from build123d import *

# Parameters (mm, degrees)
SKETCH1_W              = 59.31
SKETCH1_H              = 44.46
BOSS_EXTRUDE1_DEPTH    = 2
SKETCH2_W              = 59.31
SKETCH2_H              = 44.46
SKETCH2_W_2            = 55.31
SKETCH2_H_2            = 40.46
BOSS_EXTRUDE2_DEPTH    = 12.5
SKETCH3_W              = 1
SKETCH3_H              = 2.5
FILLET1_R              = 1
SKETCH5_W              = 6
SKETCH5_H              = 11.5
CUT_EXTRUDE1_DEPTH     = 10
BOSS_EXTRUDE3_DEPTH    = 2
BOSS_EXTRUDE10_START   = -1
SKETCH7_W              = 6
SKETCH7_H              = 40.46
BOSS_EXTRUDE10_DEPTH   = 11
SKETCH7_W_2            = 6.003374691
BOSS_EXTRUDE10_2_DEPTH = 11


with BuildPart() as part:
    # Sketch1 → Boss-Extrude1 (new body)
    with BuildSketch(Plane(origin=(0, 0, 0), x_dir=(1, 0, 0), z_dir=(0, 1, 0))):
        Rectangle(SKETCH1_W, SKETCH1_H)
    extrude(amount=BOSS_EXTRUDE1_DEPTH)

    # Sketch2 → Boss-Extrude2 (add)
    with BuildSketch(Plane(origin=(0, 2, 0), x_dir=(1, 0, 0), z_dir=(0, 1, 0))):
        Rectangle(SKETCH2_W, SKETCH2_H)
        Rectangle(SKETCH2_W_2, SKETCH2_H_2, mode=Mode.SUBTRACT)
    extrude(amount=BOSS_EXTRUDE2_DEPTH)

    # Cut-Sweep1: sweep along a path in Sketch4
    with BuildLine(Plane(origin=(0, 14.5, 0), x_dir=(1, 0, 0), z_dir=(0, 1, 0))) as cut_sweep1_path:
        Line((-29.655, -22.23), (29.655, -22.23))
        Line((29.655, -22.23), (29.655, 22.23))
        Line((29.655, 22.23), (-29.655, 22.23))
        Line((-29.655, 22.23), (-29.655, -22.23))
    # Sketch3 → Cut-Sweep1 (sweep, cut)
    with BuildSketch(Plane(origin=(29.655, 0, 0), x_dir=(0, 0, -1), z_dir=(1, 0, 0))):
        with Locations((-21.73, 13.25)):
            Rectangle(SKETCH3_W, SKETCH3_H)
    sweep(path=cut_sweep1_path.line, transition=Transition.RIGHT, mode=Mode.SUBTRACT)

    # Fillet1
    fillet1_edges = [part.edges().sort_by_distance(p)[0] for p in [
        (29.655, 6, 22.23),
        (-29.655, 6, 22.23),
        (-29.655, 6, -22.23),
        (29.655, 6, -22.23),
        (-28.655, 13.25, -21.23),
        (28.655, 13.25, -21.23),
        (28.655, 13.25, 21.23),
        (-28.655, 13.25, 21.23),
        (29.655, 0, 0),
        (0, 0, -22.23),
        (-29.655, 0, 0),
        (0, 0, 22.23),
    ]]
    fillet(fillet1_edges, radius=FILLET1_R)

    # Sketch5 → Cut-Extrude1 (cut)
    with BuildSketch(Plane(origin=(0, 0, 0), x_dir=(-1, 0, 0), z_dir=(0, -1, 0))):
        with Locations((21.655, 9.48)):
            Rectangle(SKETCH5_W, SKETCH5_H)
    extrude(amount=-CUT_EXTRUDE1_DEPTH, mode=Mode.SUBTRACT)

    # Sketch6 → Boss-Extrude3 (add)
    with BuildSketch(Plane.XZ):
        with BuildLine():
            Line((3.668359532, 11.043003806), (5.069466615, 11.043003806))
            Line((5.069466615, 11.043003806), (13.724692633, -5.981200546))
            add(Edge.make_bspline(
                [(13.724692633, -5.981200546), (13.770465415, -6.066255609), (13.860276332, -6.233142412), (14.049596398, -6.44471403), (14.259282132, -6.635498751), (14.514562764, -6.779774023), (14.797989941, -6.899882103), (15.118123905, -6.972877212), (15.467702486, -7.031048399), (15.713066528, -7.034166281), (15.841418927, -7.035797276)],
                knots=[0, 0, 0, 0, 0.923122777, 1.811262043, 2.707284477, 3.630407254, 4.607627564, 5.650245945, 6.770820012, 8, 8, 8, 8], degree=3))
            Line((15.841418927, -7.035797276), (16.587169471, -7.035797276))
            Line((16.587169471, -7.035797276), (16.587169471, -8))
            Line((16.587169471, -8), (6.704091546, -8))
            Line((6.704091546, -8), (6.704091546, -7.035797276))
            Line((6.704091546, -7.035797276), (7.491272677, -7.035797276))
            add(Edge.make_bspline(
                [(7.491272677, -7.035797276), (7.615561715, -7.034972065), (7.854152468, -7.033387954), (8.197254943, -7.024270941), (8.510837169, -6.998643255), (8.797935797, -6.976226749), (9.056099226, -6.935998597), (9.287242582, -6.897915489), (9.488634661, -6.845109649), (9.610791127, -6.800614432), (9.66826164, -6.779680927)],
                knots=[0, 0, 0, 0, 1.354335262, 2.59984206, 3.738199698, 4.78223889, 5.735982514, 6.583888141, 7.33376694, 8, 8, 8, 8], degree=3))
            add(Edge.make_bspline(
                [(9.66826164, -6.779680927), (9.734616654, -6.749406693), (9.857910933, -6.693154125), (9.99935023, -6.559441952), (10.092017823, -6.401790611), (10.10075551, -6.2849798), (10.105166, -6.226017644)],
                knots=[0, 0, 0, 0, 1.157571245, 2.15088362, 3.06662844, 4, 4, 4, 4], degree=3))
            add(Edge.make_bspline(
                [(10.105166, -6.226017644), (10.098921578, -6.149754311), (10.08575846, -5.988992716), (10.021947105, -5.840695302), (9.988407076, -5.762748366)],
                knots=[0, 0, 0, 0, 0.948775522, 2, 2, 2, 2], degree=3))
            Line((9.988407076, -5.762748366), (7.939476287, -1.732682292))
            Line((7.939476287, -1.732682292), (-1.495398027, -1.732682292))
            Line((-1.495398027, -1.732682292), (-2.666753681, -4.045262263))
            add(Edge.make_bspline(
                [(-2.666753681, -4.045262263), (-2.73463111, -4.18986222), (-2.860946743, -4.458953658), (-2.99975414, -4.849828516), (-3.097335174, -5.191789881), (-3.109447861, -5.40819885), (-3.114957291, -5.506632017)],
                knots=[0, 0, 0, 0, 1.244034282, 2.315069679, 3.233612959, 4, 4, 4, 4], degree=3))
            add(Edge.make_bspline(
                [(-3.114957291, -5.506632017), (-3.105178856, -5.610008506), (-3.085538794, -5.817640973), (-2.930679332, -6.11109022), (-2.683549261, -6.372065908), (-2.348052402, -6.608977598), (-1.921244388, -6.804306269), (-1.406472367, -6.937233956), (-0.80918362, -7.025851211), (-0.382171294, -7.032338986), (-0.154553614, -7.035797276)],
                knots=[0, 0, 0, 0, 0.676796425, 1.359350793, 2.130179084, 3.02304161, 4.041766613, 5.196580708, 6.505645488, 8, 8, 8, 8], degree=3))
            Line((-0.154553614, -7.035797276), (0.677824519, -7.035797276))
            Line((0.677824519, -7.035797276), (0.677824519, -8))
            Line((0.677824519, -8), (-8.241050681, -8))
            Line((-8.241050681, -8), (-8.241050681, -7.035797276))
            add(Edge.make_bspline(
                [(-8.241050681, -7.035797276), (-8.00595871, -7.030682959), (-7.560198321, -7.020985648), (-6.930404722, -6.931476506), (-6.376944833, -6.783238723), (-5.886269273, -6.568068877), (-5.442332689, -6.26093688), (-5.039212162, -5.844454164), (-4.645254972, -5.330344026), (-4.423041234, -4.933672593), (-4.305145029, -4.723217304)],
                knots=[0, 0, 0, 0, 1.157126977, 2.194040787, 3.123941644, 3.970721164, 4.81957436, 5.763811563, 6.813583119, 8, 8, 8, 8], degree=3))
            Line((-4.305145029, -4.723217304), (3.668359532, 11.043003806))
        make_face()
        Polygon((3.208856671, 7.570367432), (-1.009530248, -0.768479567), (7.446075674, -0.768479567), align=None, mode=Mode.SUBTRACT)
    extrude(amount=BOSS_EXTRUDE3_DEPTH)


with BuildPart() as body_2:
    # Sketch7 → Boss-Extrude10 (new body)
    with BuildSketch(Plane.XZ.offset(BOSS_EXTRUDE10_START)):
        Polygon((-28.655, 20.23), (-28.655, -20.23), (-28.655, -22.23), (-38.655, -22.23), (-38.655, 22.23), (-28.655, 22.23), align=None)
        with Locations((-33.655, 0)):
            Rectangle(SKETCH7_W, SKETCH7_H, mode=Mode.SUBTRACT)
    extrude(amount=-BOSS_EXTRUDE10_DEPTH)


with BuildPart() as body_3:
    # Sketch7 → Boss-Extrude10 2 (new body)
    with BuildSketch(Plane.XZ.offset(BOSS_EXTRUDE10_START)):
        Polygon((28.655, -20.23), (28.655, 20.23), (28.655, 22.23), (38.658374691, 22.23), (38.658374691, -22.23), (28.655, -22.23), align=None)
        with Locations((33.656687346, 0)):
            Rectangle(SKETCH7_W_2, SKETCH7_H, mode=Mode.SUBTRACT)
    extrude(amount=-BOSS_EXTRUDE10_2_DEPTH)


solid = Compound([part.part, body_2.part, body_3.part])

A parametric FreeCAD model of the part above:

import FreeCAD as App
import Part
import Sketcher
from FreeCAD import Vector


def edges_at(feature, points):
    """Names of the edges that pass closest to the given points."""
    edges = feature.Shape.Edges
    near = lambda p: min(range(len(edges)), key=lambda i: edges[i].distToShape(Part.Vertex(*p))[0])
    return sorted({f"Edge{near(p) + 1}" for p in points})


def add_polygon(sketch, points):
    """Adds a closed chain of lines whose ends are joined by coincident constraints."""
    first, n = sketch.GeometryCount, len(points)
    for a, b in zip(points, points[1:] + points[:1]):
        sketch.addGeometry(Part.LineSegment(App.Vector(*a, 0), App.Vector(*b, 0)), False)
    for i in range(n):
        sketch.addConstraint(Sketcher.Constraint("Coincident", first + i, 2, first + (i + 1) % n, 1))

doc = App.newDocument("Part")
body = doc.addObject("PartDesign::Body", "Body")

# Sketch on XZ plane
sketch1 = body.newObject("Sketcher::SketchObject", "Sketch")
sketch1.AttachmentSupport = (doc.getObject("XZ_Plane"), [""])
sketch1.MapMode = "FlatFace"
add_polygon(sketch1, [(-30, -22), (-30, 22), (30, 22), (30, -22)])  # lines 0-3
sketch1.addConstraint(Sketcher.Constraint("Vertical", 0))
sketch1.addConstraint(Sketcher.Constraint("Horizontal", 1))
sketch1.addConstraint(Sketcher.Constraint("Vertical", 2))
sketch1.addConstraint(Sketcher.Constraint("Horizontal", 3))
sketch1.addConstraint(Sketcher.Constraint("Symmetric", 0, 2, 2, 2, -1, 1))
sketch1.addConstraint(Sketcher.Constraint("DistanceX", 1, 1, 1, 2, 59.31))
sketch1.addConstraint(Sketcher.Constraint("DistanceY", 0, 1, 0, 2, 44.46))
pad1 = body.newObject("PartDesign::Pad", "Pad")
pad1.Profile = sketch1
pad1.Length = 2
pad1.Reversed = True

# Sketch on XZ plane
sketch2 = body.newObject("Sketcher::SketchObject", "Sketch001")
sketch2.AttachmentSupport = (doc.getObject("XZ_Plane"), [""])
sketch2.MapMode = "FlatFace"
sketch2.AttachmentOffset = App.Placement(Vector(0, 0, -2), App.Rotation())
add_polygon(sketch2, [(-30, -22), (-30, 22), (30, 22), (30, -22)])  # lines 0-3
add_polygon(sketch2, [(28, 20), (-28, 20), (-28, -20), (28, -20)])  # lines 4-7
sketch2.addConstraint(Sketcher.Constraint("Vertical", 0))
sketch2.addConstraint(Sketcher.Constraint("Horizontal", 1))
sketch2.addConstraint(Sketcher.Constraint("Vertical", 2))
sketch2.addConstraint(Sketcher.Constraint("Horizontal", 3))
sketch2.addConstraint(Sketcher.Constraint("Horizontal", 4))
sketch2.addConstraint(Sketcher.Constraint("Vertical", 5))
sketch2.addConstraint(Sketcher.Constraint("Horizontal", 6))
sketch2.addConstraint(Sketcher.Constraint("Vertical", 7))
sketch2.addConstraint(Sketcher.Constraint("Symmetric", 0, 2, 2, 2, -1, 1))
sketch2.addConstraint(Sketcher.Constraint("Symmetric", 4, 2, 6, 2, -1, 1))
sketch2.addConstraint(Sketcher.Constraint("DistanceX", 0, 2, 4, 2, 2.0))
sketch2.addConstraint(Sketcher.Constraint("DistanceY", 4, 2, 0, 2, 2.0))
sketch2.addConstraint(Sketcher.Constraint("DistanceX", 1, 1, 1, 2, 59.31))
sketch2.addConstraint(Sketcher.Constraint("DistanceY", 0, 1, 0, 2, 44.46))
pad2 = body.newObject("PartDesign::Pad", "Pad001")
pad2.Profile = sketch2
pad2.Length = 12.5
pad2.Reversed = True

# Sketch on YZ plane
sketch3 = body.newObject("Sketcher::SketchObject", "Sketch002")
sketch3.AttachmentSupport = (doc.getObject("YZ_Plane"), [""])
sketch3.MapMode = "FlatFace"
sketch3.AttachmentOffset = App.Placement(Vector(0, 0, 29.655), App.Rotation())
add_polygon(sketch3, [(14.5, 22.2), (12, 22.2), (12, 21.2), (14.5, 21.2)])  # lines 0-3
sketch3.addConstraint(Sketcher.Constraint("Horizontal", 0))
sketch3.addConstraint(Sketcher.Constraint("Vertical", 1))
sketch3.addConstraint(Sketcher.Constraint("Horizontal", 2))
sketch3.addConstraint(Sketcher.Constraint("Vertical", 3))
sketch3.addConstraint(Sketcher.Constraint("DistanceY", 1, 2, 1, 1, 1.0))
sketch3.addConstraint(Sketcher.Constraint("DistanceX", 0, 2, 0, 1, 2.5))
sketch3.addConstraint(Sketcher.Constraint("DistanceX", -1, 1, 0, 2, 12.0))
sketch3.addConstraint(Sketcher.Constraint("DistanceY", -1, 1, 0, 2, 22.23))

# Sketch on XZ plane
sketch4 = body.newObject("Sketcher::SketchObject", "Sketch003")
sketch4.AttachmentSupport = (doc.getObject("XZ_Plane"), [""])
sketch4.MapMode = "FlatFace"
sketch4.AttachmentOffset = App.Placement(Vector(0, 0, -14.5), App.Rotation())
add_polygon(sketch4, [(-30, 22), (30, 22), (30, -22), (-30, -22)])  # lines 0-3
sketch4.addConstraint(Sketcher.Constraint("Horizontal", 0))
sketch4.addConstraint(Sketcher.Constraint("Vertical", 1))
sketch4.addConstraint(Sketcher.Constraint("Horizontal", 2))
sketch4.addConstraint(Sketcher.Constraint("Vertical", 3))
sketch4.addConstraint(Sketcher.Constraint("Symmetric", 0, 2, 2, 2, -1, 1))
sketch4.addConstraint(Sketcher.Constraint("DistanceX", 0, 1, 0, 2, 59.31))
sketch4.addConstraint(Sketcher.Constraint("DistanceY", 1, 2, 1, 1, 44.46))
doc.recompute()

subtractivepipe = body.newObject("PartDesign::SubtractivePipe", "SubtractivePipe")
subtractivepipe.Profile = sketch3
subtractivepipe.Spine = (sketch4, ["Edge1", "Edge2", "Edge3", "Edge4"])
subtractivepipe.Transition = "Right corner"
doc.recompute()

fillet = body.newObject("PartDesign::Fillet", "Fillet")
fillet.Base = (subtractivepipe, edges_at(subtractivepipe, [
    (29.655, 6, 22.23),
    (-29.655, 6, 22.23),
    (-29.655, 6, -22.23),
    (29.655, 6, -22.23),
    (-28.655, 13.25, -21.23),
    (28.655, 13.25, -21.23),
    (28.655, 13.25, 21.23),
    (-28.655, 13.25, 21.23),
    (29.655, 0, 0),
    (0, 0, -22.23),
    (-29.655, 0, 0),
    (0, 0, 22.23),
]))
fillet.Radius = 1

# Sketch on XZ plane
sketch5 = body.newObject("Sketcher::SketchObject", "Sketch004")
sketch5.AttachmentSupport = (doc.getObject("XZ_Plane"), [""])
sketch5.MapMode = "FlatFace"
add_polygon(sketch5, [(-19, -15), (-19, -4), (-25, -4), (-25, -15)])  # lines 0-3
sketch5.addConstraint(Sketcher.Constraint("Vertical", 0))
sketch5.addConstraint(Sketcher.Constraint("Horizontal", 1))
sketch5.addConstraint(Sketcher.Constraint("Vertical", 2))
sketch5.addConstraint(Sketcher.Constraint("Horizontal", 3))
sketch5.addConstraint(Sketcher.Constraint("DistanceX", 1, 2, 1, 1, 6.0))
sketch5.addConstraint(Sketcher.Constraint("DistanceY", 0, 1, 0, 2, 11.5))
sketch5.addConstraint(Sketcher.Constraint("DistanceY", 0, 2, -1, 1, 3.73))
sketch5.addConstraint(Sketcher.Constraint("DistanceX", 0, 2, -1, 1, 18.655))
pocket1 = body.newObject("PartDesign::Pocket", "Pocket")
pocket1.Profile = sketch5
pocket1.Length = 10

# Sketch on XZ plane
sketch6 = body.newObject("Sketcher::SketchObject", "Sketch005")
sketch6.AttachmentSupport = (doc.getObject("XZ_Plane"), [""])
sketch6.MapMode = "FlatFace"
sketch6.addGeometry(Part.LineSegment(Vector(5.069467, 11.043004, 0), Vector(3.66836, 11.043004, 0)), False)  # 0
sketch6.addGeometry(Part.LineSegment(Vector(3.66836, 11.043004, 0), Vector(-4.305145, -4.723217, 0)), False)  # 1
sketch6.addGeometry(Part.BSplineCurve([Vector(-8.241051, -7.035797, 0), Vector(-8.005959, -7.030683, 0), Vector(-7.560198, -7.020986, 0), Vector(-6.930405, -6.931477, 0), Vector(-6.376945, -6.783239, 0), Vector(-5.886269, -6.568069, 0), Vector(-5.442333, -6.260937, 0), Vector(-5.039212, -5.844454, 0), Vector(-4.645255, -5.330344, 0), Vector(-4.423041, -4.933673, 0), Vector(-4.305145, -4.723217, 0)], [4, 1, 1, 1, 1, 1, 1, 1, 4], [0, 1.157126977, 2.194040787, 3.123941644, 3.970721164, 4.81957436, 5.763811563, 6.813583119, 8], False, 3, [1, 1, 1, 1, 1, 1, 1, 1, 1, 1, 1], False), False)  # 2
sketch6.addGeometry(Part.LineSegment(Vector(-8.241051, -7.035797, 0), Vector(-8.241051, -8, 0)), False)  # 3
sketch6.addGeometry(Part.LineSegment(Vector(-8.241051, -8, 0), Vector(0.677825, -8, 0)), False)  # 4
sketch6.addGeometry(Part.LineSegment(Vector(0.677825, -8, 0), Vector(0.677825, -7.035797, 0)), False)  # 5
sketch6.addGeometry(Part.LineSegment(Vector(0.677825, -7.035797, 0), Vector(-0.154554, -7.035797, 0)), False)  # 6
sketch6.addGeometry(Part.BSplineCurve([Vector(-3.114957, -5.506632, 0), Vector(-3.105179, -5.610009, 0), Vector(-3.085539, -5.817641, 0), Vector(-2.930679, -6.11109, 0), Vector(-2.683549, -6.372066, 0), Vector(-2.348052, -6.608978, 0), Vector(-1.921244, -6.804306, 0), Vector(-1.406472, -6.937234, 0), Vector(-0.809184, -7.025851, 0), Vector(-0.382171, -7.032339, 0), Vector(-0.154554, -7.035797, 0)], [4, 1, 1, 1, 1, 1, 1, 1, 4], [0, 0.676796425, 1.359350793, 2.130179084, 3.02304161, 4.041766613, 5.196580708, 6.505645488, 8], False, 3, [1, 1, 1, 1, 1, 1, 1, 1, 1, 1, 1], False), False)  # 7
sketch6.addGeometry(Part.BSplineCurve([Vector(-2.666754, -4.045262, 0), Vector(-2.734631, -4.189862, 0), Vector(-2.860947, -4.458954, 0), Vector(-2.999754, -4.849829, 0), Vector(-3.097335, -5.19179, 0), Vector(-3.109448, -5.408199, 0), Vector(-3.114957, -5.506632, 0)], [4, 1, 1, 1, 4], [0, 1.244034282, 2.315069679, 3.233612959, 4], False, 3, [1, 1, 1, 1, 1, 1, 1], False), False)  # 8
sketch6.addGeometry(Part.LineSegment(Vector(-2.666754, -4.045262, 0), Vector(-1.495398, -1.732682, 0)), False)  # 9
sketch6.addGeometry(Part.LineSegment(Vector(-1.495398, -1.732682, 0), Vector(7.939476, -1.732682, 0)), False)  # 10
sketch6.addGeometry(Part.LineSegment(Vector(7.939476, -1.732682, 0), Vector(9.988407, -5.762748, 0)), False)  # 11
sketch6.addGeometry(Part.BSplineCurve([Vector(10.105166, -6.226018, 0), Vector(10.098922, -6.149754, 0), Vector(10.085758, -5.988993, 0), Vector(10.021947, -5.840695, 0), Vector(9.988407, -5.762748, 0)], [4, 1, 4], [0, 0.948775522, 2], False, 3, [1, 1, 1, 1, 1], False), False)  # 12
sketch6.addGeometry(Part.BSplineCurve([Vector(9.668262, -6.779681, 0), Vector(9.734617, -6.749407, 0), Vector(9.857911, -6.693154, 0), Vector(9.99935, -6.559442, 0), Vector(10.092018, -6.401791, 0), Vector(10.100756, -6.28498, 0), Vector(10.105166, -6.226018, 0)], [4, 1, 1, 1, 4], [0, 1.157571245, 2.15088362, 3.06662844, 4], False, 3, [1, 1, 1, 1, 1, 1, 1], False), False)  # 13
sketch6.addGeometry(Part.BSplineCurve([Vector(7.491273, -7.035797, 0), Vector(7.615562, -7.034972, 0), Vector(7.854152, -7.033388, 0), Vector(8.197255, -7.024271, 0), Vector(8.510837, -6.998643, 0), Vector(8.797936, -6.976227, 0), Vector(9.056099, -6.935999, 0), Vector(9.287243, -6.897915, 0), Vector(9.488635, -6.84511, 0), Vector(9.610791, -6.800614, 0), Vector(9.668262, -6.779681, 0)], [4, 1, 1, 1, 1, 1, 1, 1, 4], [0, 1.354335262, 2.59984206, 3.738199698, 4.78223889, 5.735982514, 6.583888141, 7.33376694, 8], False, 3, [1, 1, 1, 1, 1, 1, 1, 1, 1, 1, 1], False), False)  # 14
sketch6.addGeometry(Part.LineSegment(Vector(7.491273, -7.035797, 0), Vector(6.704092, -7.035797, 0)), False)  # 15
sketch6.addGeometry(Part.LineSegment(Vector(6.704092, -7.035797, 0), Vector(6.704092, -8, 0)), False)  # 16
sketch6.addGeometry(Part.LineSegment(Vector(6.704092, -8, 0), Vector(16.587169, -8, 0)), False)  # 17
sketch6.addGeometry(Part.LineSegment(Vector(16.587169, -8, 0), Vector(16.587169, -7.035797, 0)), False)  # 18
sketch6.addGeometry(Part.LineSegment(Vector(16.587169, -7.035797, 0), Vector(15.841419, -7.035797, 0)), False)  # 19
sketch6.addGeometry(Part.BSplineCurve([Vector(13.724693, -5.981201, 0), Vector(13.770465, -6.066256, 0), Vector(13.860276, -6.233142, 0), Vector(14.049596, -6.444714, 0), Vector(14.259282, -6.635499, 0), Vector(14.514563, -6.779774, 0), Vector(14.79799, -6.899882, 0), Vector(15.118124, -6.972877, 0), Vector(15.467702, -7.031048, 0), Vector(15.713067, -7.034166, 0), Vector(15.841419, -7.035797, 0)], [4, 1, 1, 1, 1, 1, 1, 1, 4], [0, 0.923122777, 1.811262043, 2.707284477, 3.630407254, 4.607627564, 5.650245945, 6.770820012, 8], False, 3, [1, 1, 1, 1, 1, 1, 1, 1, 1, 1, 1], False), False)  # 20
sketch6.addGeometry(Part.LineSegment(Vector(13.724693, -5.981201, 0), Vector(5.069467, 11.043004, 0)), False)  # 21
add_polygon(sketch6, [(3.208857, 7.570367), (7.446076, -0.76848), (-1.00953, -0.76848)])  # lines 22-24
sketch6.addConstraint(Sketcher.Constraint("Block", 2))
sketch6.addConstraint(Sketcher.Constraint("Block", 7))
sketch6.addConstraint(Sketcher.Constraint("Block", 8))
sketch6.addConstraint(Sketcher.Constraint("Block", 12))
sketch6.addConstraint(Sketcher.Constraint("Block", 13))
sketch6.addConstraint(Sketcher.Constraint("Block", 14))
sketch6.addConstraint(Sketcher.Constraint("Block", 20))
sketch6.addConstraint(Sketcher.Constraint("Coincident", 0, 2, 1, 1))
sketch6.addConstraint(Sketcher.Constraint("Coincident", 1, 2, 2, 2))
sketch6.addConstraint(Sketcher.Constraint("Coincident", 2, 1, 3, 1))
sketch6.addConstraint(Sketcher.Constraint("Coincident", 3, 2, 4, 1))
sketch6.addConstraint(Sketcher.Constraint("Coincident", 4, 2, 5, 1))
sketch6.addConstraint(Sketcher.Constraint("Coincident", 5, 2, 6, 1))
sketch6.addConstraint(Sketcher.Constraint("Coincident", 6, 2, 7, 2))
sketch6.addConstraint(Sketcher.Constraint("Coincident", 8, 1, 9, 1))
sketch6.addConstraint(Sketcher.Constraint("Coincident", 9, 2, 10, 1))
sketch6.addConstraint(Sketcher.Constraint("Coincident", 10, 2, 11, 1))
sketch6.addConstraint(Sketcher.Constraint("Coincident", 11, 2, 12, 2))
sketch6.addConstraint(Sketcher.Constraint("Coincident", 14, 1, 15, 1))
sketch6.addConstraint(Sketcher.Constraint("Coincident", 15, 2, 16, 1))
sketch6.addConstraint(Sketcher.Constraint("Coincident", 16, 2, 17, 1))
sketch6.addConstraint(Sketcher.Constraint("Coincident", 17, 2, 18, 1))
sketch6.addConstraint(Sketcher.Constraint("Coincident", 18, 2, 19, 1))
sketch6.addConstraint(Sketcher.Constraint("Coincident", 19, 2, 20, 2))
sketch6.addConstraint(Sketcher.Constraint("Coincident", 20, 1, 21, 1))
sketch6.addConstraint(Sketcher.Constraint("Coincident", 21, 2, 0, 1))
sketch6.addConstraint(Sketcher.Constraint("Horizontal", 0))
sketch6.addConstraint(Sketcher.Constraint("Vertical", 3))
sketch6.addConstraint(Sketcher.Constraint("Horizontal", 4))
sketch6.addConstraint(Sketcher.Constraint("Vertical", 5))
sketch6.addConstraint(Sketcher.Constraint("Horizontal", 6))
sketch6.addConstraint(Sketcher.Constraint("Horizontal", 10))
sketch6.addConstraint(Sketcher.Constraint("Horizontal", 15))
sketch6.addConstraint(Sketcher.Constraint("Vertical", 16))
sketch6.addConstraint(Sketcher.Constraint("Horizontal", 17))
sketch6.addConstraint(Sketcher.Constraint("Vertical", 18))
sketch6.addConstraint(Sketcher.Constraint("Horizontal", 19))
sketch6.addConstraint(Sketcher.Constraint("Horizontal", 23))
sketch6.addConstraint(Sketcher.Constraint("Horizontal", 4, 2, 16, 2))
sketch6.addConstraint(Sketcher.Constraint("DistanceY", 3, 2, -1, 1, 8.0))
sketch6.addConstraint(Sketcher.Constraint("DistanceX", 6, 2, 6, 1, 0.832378))
sketch6.addConstraint(Sketcher.Constraint("DistanceX", 15, 2, 15, 1, 0.787181))
sketch6.addConstraint(Sketcher.Constraint("DistanceX", 19, 2, 19, 1, 0.745751))
sketch6.addConstraint(Sketcher.Constraint("DistanceX", 9, 2, -1, 1, 1.495398))
sketch6.addConstraint(Sketcher.Constraint("DistanceY", 5, 2, 0, 2, 18.078801))
sketch6.addConstraint(Sketcher.Constraint("DistanceX", 22, 2, 10, 2, 0.493401))
sketch6.addConstraint(Sketcher.Constraint("Distance", 1, 17.667781))
sketch6.addConstraint(Sketcher.Constraint("Distance", 22, 9.35363))
sketch6.addConstraint(Sketcher.Constraint("DistanceX", 0, 2, 0, 1, 1.401107))
sketch6.addConstraint(Sketcher.Constraint("DistanceX", 10, 1, 10, 2, 9.434874))
sketch6.addConstraint(Sketcher.Constraint("DistanceX", 23, 2, 23, 1, 8.455606))
sketch6.addConstraint(Sketcher.Constraint("DistanceY", 22, 2, -1, 1, 0.76848))
sketch6.addConstraint(Sketcher.Constraint("DistanceX", 24, 2, 21, 2, 1.86061))
sketch6.addConstraint(Sketcher.Constraint("DistanceY", 9, 2, 24, 2, 9.30305))
pad3 = body.newObject("PartDesign::Pad", "Pad002")
pad3.Profile = sketch6
pad3.Length = 2
body2 = doc.addObject("PartDesign::Body", "Body001")

# Sketch on XZ plane
sketch7 = body2.newObject("Sketcher::SketchObject", "Sketch006")
sketch7.AttachmentSupport = (doc.getObject("XZ_Plane001"), [""])
sketch7.MapMode = "FlatFace"
sketch7.AttachmentOffset = App.Placement(Vector(0, 0, -1), App.Rotation())
add_polygon(sketch7, [(-29, -22), (-29, 22), (-39, 22), (-39, -22)])  # lines 0-3
add_polygon(sketch7, [(-37, -20), (-37, 20), (-31, 20), (-31, -20)])  # lines 4-7
sketch7.addConstraint(Sketcher.Constraint("Vertical", 0))
sketch7.addConstraint(Sketcher.Constraint("Horizontal", 1))
sketch7.addConstraint(Sketcher.Constraint("Vertical", 2))
sketch7.addConstraint(Sketcher.Constraint("Horizontal", 3))
sketch7.addConstraint(Sketcher.Constraint("Vertical", 4))
sketch7.addConstraint(Sketcher.Constraint("Horizontal", 5))
sketch7.addConstraint(Sketcher.Constraint("Vertical", 6))
sketch7.addConstraint(Sketcher.Constraint("Horizontal", 7))
sketch7.addConstraint(Sketcher.Constraint("DistanceX", 1, 2, 1, 1, 10.0))
sketch7.addConstraint(Sketcher.Constraint("DistanceX", 5, 1, 5, 2, 6.0))
sketch7.addConstraint(Sketcher.Constraint("DistanceX", 1, 2, 4, 2, 2.0))
sketch7.addConstraint(Sketcher.Constraint("DistanceY", 4, 2, 1, 2, 2.0))
sketch7.addConstraint(Sketcher.Constraint("DistanceY", 3, 2, 6, 2, 2.0))
sketch7.addConstraint(Sketcher.Constraint("DistanceY", 0, 1, 0, 2, 44.46))
sketch7.addConstraint(Sketcher.Constraint("DistanceY", -1, 1, 0, 2, 22.23))
sketch7.addConstraint(Sketcher.Constraint("DistanceX", 0, 2, -1, 1, 28.655))
pad4 = body2.newObject("PartDesign::Pad", "Pad003")
pad4.Profile = sketch7
pad4.Length = 11
pad4.Reversed = True
body3 = doc.addObject("PartDesign::Body", "Body002")

# Sketch on XZ plane
sketch8 = body3.newObject("Sketcher::SketchObject", "Sketch007")
sketch8.AttachmentSupport = (doc.getObject("XZ_Plane002"), [""])
sketch8.MapMode = "FlatFace"
sketch8.AttachmentOffset = App.Placement(Vector(0, 0, -1), App.Rotation())
add_polygon(sketch8, [(29, 22), (29, -22), (39, -22), (39, 22)])  # lines 0-3
add_polygon(sketch8, [(31, -20), (31, 20), (37, 20), (37, -20)])  # lines 4-7
sketch8.addConstraint(Sketcher.Constraint("Vertical", 0))
sketch8.addConstraint(Sketcher.Constraint("Horizontal", 1))
sketch8.addConstraint(Sketcher.Constraint("Vertical", 2))
sketch8.addConstraint(Sketcher.Constraint("Horizontal", 3))
sketch8.addConstraint(Sketcher.Constraint("Vertical", 4))
sketch8.addConstraint(Sketcher.Constraint("Horizontal", 5))
sketch8.addConstraint(Sketcher.Constraint("Vertical", 6))
sketch8.addConstraint(Sketcher.Constraint("Horizontal", 7))
sketch8.addConstraint(Sketcher.Constraint("DistanceX", 3, 2, 4, 2, 2.0))
sketch8.addConstraint(Sketcher.Constraint("DistanceY", 4, 2, 3, 2, 2.0))
sketch8.addConstraint(Sketcher.Constraint("DistanceX", 5, 2, 2, 2, 2.0))
sketch8.addConstraint(Sketcher.Constraint("DistanceY", 1, 2, 6, 2, 2.0))
sketch8.addConstraint(Sketcher.Constraint("DistanceY", 0, 2, 0, 1, 44.46))
sketch8.addConstraint(Sketcher.Constraint("DistanceY", 0, 2, -1, 1, 22.23))
sketch8.addConstraint(Sketcher.Constraint("DistanceX", -1, 1, 0, 2, 28.655))
sketch8.addConstraint(Sketcher.Constraint("DistanceX", 1, 1, 1, 2, 10.003375))
pad5 = body3.newObject("PartDesign::Pad", "Pad004")
pad5.Profile = sketch8
pad5.Length = 11
pad5.Reversed = True

doc.recompute()
